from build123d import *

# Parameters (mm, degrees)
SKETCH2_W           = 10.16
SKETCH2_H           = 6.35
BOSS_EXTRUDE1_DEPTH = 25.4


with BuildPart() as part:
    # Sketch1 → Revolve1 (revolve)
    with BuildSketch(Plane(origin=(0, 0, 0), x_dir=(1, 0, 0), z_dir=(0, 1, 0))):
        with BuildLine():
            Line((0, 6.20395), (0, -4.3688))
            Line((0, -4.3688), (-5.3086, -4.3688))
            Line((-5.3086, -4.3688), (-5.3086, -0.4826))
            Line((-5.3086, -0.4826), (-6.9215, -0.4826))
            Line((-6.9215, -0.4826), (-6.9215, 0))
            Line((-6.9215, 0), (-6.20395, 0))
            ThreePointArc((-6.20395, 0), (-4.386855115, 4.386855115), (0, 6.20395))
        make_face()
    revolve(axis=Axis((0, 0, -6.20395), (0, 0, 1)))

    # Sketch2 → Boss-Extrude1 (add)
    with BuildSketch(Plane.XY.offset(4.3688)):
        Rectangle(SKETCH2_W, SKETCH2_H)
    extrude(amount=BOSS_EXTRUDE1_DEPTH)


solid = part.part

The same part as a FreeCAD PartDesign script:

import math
import FreeCAD as App
import Part
import Sketcher
Q = App.Units.Quantity

doc = App.newDocument("Part")
body = doc.addObject("PartDesign::Body", "Body")

# Sketch on XZ plane
sketch1 = body.newObject("Sketcher::SketchObject", "Sketch")
sketch1.AttachmentSupport = (doc.getObject("XZ_Plane"), [""])
sketch1.MapMode = "FlatFace"
sketch1.addGeometry(Part.LineSegment(App.Vector(0, 4.37, 0), App.Vector(0, -6.2, 0)), False)
sketch1.addGeometry(Part.ArcOfCircle(Part.Circle(App.Vector(0, 0, 0), App.Vector(0, 0, 1), 6.2), math.radians(180), math.radians(270)), False)
sketch1.addGeometry(Part.LineSegment(App.Vector(-6.2, 0, 0), App.Vector(-6.92, 0, 0)), False)
sketch1.addGeometry(Part.LineSegment(App.Vector(-6.92, 0, 0), App.Vector(-6.92, 0.48, 0)), False)
sketch1.addGeometry(Part.LineSegment(App.Vector(-6.92, 0.48, 0), App.Vector(-5.31, 0.48, 0)), False)
sketch1.addGeometry(Part.LineSegment(App.Vector(-5.31, 0.48, 0), App.Vector(-5.31, 4.37, 0)), False)
sketch1.addGeometry(Part.LineSegment(App.Vector(-5.31, 4.37, 0), App.Vector(0, 4.37, 0)), False)
sketch1.addConstraint(Sketcher.Constraint("Coincident", 0, 2, 1, 2))
sketch1.addConstraint(Sketcher.Constraint("Coincident", 1, 1, 2, 1))
sketch1.addConstraint(Sketcher.Constraint("Coincident", 2, 2, 3, 1))
sketch1.addConstraint(Sketcher.Constraint("Coincident", 3, 2, 4, 1))
sketch1.addConstraint(Sketcher.Constraint("Coincident", 4, 2, 5, 1))
sketch1.addConstraint(Sketcher.Constraint("Coincident", 5, 2, 6, 1))
sketch1.addConstraint(Sketcher.Constraint("Coincident", 6, 2, 0, 1))
sketch1.addConstraint(Sketcher.Constraint("Vertical", 0))
sketch1.addConstraint(Sketcher.Constraint("Horizontal", 2))
sketch1.addConstraint(Sketcher.Constraint("Vertical", 3))
sketch1.addConstraint(Sketcher.Constraint("Horizontal", 4))
sketch1.addConstraint(Sketcher.Constraint("Vertical", 5))
sketch1.addConstraint(Sketcher.Constraint("Horizontal", 6))
sketch1.addConstraint(Sketcher.Constraint("Coincident", 1, 3, -1, 1))
sketch1.addConstraint(Sketcher.Constraint("PointOnObject", 0, 2, -2))
sketch1.addConstraint(Sketcher.Constraint("PointOnObject", 1, 1, -1))
sketch1.addConstraint(Sketcher.Constraint("DistanceX", 6, 1, 6, 2, Q("0.209 in")))
sketch1.addConstraint(Sketcher.Constraint("DistanceY", 3, 1, 3, 2, Q("0.019 in")))
sketch1.addConstraint(Sketcher.Constraint("DistanceY", 5, 1, 5, 2, Q("0.153 in")))
sketch1.addConstraint(Sketcher.Constraint("DistanceX", 4, 1, 4, 2, Q("0.0635 in")))
sketch1.addConstraint(Sketcher.Constraint("Radius", 1, 6.20395))
revolution = body.newObject("PartDesign::Revolution", "Revolution")
revolution.Profile = sketch1
revolution.ReferenceAxis = (sketch1, ["V_Axis"])
revolution.Angle = 360

# Sketch on XY plane
sketch2 = body.newObject("Sketcher::SketchObject", "Sketch001")
sketch2.AttachmentSupport = (doc.getObject("XY_Plane"), [""])
sketch2.MapMode = "FlatFace"
sketch2.AttachmentOffset = App.Placement(App.Vector(0, 0, 0.172 * 25.4), App.Rotation())
sketch2.addGeometry(Part.LineSegment(App.Vector(-5, 3, 0), App.Vector(-5, -3, 0)), False)
sketch2.addGeometry(Part.LineSegment(App.Vector(-5, -3, 0), App.Vector(5, -3, 0)), False)
sketch2.addGeometry(Part.LineSegment(App.Vector(5, -3, 0), App.Vector(5, 3, 0)), False)
sketch2.addGeometry(Part.LineSegment(App.Vector(5, 3, 0), App.Vector(-5, 3, 0)), False)
sketch2.addConstraint(Sketcher.Constraint("Coincident", 0, 2, 1, 1))
sketch2.addConstraint(Sketcher.Constraint("Coincident", 1, 2, 2, 1))
sketch2.addConstraint(Sketcher.Constraint("Coincident", 2, 2, 3, 1))
sketch2.addConstraint(Sketcher.Constraint("Coincident", 3, 2, 0, 1))
sketch2.addConstraint(Sketcher.Constraint("Vertical", 0))
sketch2.addConstraint(Sketcher.Constraint("Horizontal", 1))
sketch2.addConstraint(Sketcher.Constraint("Vertical", 2))
sketch2.addConstraint(Sketcher.Constraint("Horizontal", 3))
sketch2.addConstraint(Sketcher.Constraint("Symmetric", 0, 2, 2, 2, -1, 1))
sketch2.addConstraint(Sketcher.Constraint("DistanceX", 1, 1, 1, 2, Q("0.4 in")))
sketch2.addConstraint(Sketcher.Constraint("DistanceY", 0, 2, 0, 1, Q("0.25 in")))
pad1 = body.newObject("PartDesign::Pad", "Pad")
pad1.Profile = sketch2
pad1.Length = Q("1 in")

doc.recompute()
